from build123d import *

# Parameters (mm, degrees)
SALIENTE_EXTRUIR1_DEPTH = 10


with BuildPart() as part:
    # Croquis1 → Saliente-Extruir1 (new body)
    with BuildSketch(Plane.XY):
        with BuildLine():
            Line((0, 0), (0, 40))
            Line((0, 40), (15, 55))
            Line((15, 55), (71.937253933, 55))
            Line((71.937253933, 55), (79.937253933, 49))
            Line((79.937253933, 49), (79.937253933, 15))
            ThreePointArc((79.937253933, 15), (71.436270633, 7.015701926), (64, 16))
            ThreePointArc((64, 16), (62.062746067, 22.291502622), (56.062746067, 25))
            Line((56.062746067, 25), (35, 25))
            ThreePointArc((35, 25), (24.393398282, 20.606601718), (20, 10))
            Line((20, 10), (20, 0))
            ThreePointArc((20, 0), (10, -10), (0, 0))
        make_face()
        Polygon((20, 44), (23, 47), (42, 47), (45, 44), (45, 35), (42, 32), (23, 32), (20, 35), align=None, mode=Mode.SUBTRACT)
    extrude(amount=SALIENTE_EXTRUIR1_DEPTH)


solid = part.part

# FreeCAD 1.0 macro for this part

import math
import FreeCAD as App
import Part
import Sketcher
Q = App.Units.Quantity

doc = App.newDocument("Part")
params = doc.addObject("Spreadsheet::Sheet", "Params")
for row, (alias, value) in enumerate([
    ("sketch1_radius", "10 mm"),
    ("sketch1_radius2", "15 mm"),
    ("sketch1_radius3", "8 mm"),
    ("sketch1_width", "19 mm"),
    ("sketch1_height", "40 mm"),
    ("pad1_length", "10 mm"),
], start=1):
    params.set(f"A{row}", alias)
    params.set(f"B{row}", "=" + value)
    params.setAlias(f"B{row}", alias)

body = doc.addObject("PartDesign::Body", "Body")

# Sketch on XY plane
sketch1 = body.newObject("Sketcher::SketchObject", "Sketch")
sketch1.AttachmentSupport = (doc.getObject("XY_Plane"), [""])
sketch1.MapMode = "FlatFace"
sketch1.addGeometry([
    Part.LineSegment(App.Vector(0, 40, 0), App.Vector(0, 0, 0)),  # 0
    Part.ArcOfCircle(Part.Circle(App.Vector(10, 0, 0), App.Vector(0, 0, 1), 10), math.radians(180), math.radians(360)),  # 1
    Part.LineSegment(App.Vector(20, 0, 0), App.Vector(20, 10, 0)),  # 2
    Part.ArcOfCircle(Part.Circle(App.Vector(35, 10, 0), App.Vector(0, 0, 1), 15), math.radians(90), math.radians(180)),  # 3
    Part.LineSegment(App.Vector(35, 25, 0), App.Vector(56.1, 25, 0)),  # 4
    Part.ArcOfCircle(Part.Circle(App.Vector(56.1, 17, 0), App.Vector(0, 0, 1), 8), math.radians(-7), math.radians(90)),  # 5
    Part.ArcOfCircle(Part.Circle(App.Vector(71.9, 15, 0), App.Vector(0, 0, 1), 8), math.radians(173), math.radians(360)),  # 6
    Part.LineSegment(App.Vector(79.9, 15, 0), App.Vector(79.9, 49, 0)),  # 7
    Part.LineSegment(App.Vector(79.9, 49, 0), App.Vector(71.9, 55, 0)),  # 8
    Part.LineSegment(App.Vector(71.9, 55, 0), App.Vector(15, 55, 0)),  # 9
    Part.LineSegment(App.Vector(15, 55, 0), App.Vector(0, 40, 0)),  # 10
    Part.LineSegment(App.Vector(20, 44, 0), App.Vector(23, 47, 0)),  # 11
    Part.LineSegment(App.Vector(23, 47, 0), App.Vector(42, 47, 0)),  # 12
    Part.LineSegment(App.Vector(42, 47, 0), App.Vector(45, 44, 0)),  # 13
    Part.LineSegment(App.Vector(45, 44, 0), App.Vector(45, 35, 0)),  # 14
    Part.LineSegment(App.Vector(45, 35, 0), App.Vector(42, 32, 0)),  # 15
    Part.LineSegment(App.Vector(42, 32, 0), App.Vector(23, 32, 0)),  # 16
    Part.LineSegment(App.Vector(23, 32, 0), App.Vector(20, 35, 0)),  # 17
    Part.LineSegment(App.Vector(20, 35, 0), App.Vector(20, 44, 0)),  # 18
], False)
sketch1.addConstraint([
    Sketcher.Constraint("Tangent", 0, 2, 1, 1),
    Sketcher.Constraint("Tangent", 1, 2, 2, 1),
    Sketcher.Constraint("Tangent", 2, 2, 3, 2),
    Sketcher.Constraint("Tangent", 3, 1, 4, 1),
    Sketcher.Constraint("Tangent", 4, 2, 5, 2),
    Sketcher.Constraint("Tangent", 5, 1, 6, 1),
    Sketcher.Constraint("Tangent", 6, 2, 7, 1),
    Sketcher.Constraint("Coincident", 7, 2, 8, 1),
    Sketcher.Constraint("Coincident", 8, 2, 9, 1),
    Sketcher.Constraint("Coincident", 9, 2, 10, 1),
    Sketcher.Constraint("Coincident", 10, 2, 0, 1),
    Sketcher.Constraint("Coincident", 11, 2, 12, 1),
    Sketcher.Constraint("Coincident", 12, 2, 13, 1),
    Sketcher.Constraint("Coincident", 13, 2, 14, 1),
    Sketcher.Constraint("Coincident", 14, 2, 15, 1),
    Sketcher.Constraint("Coincident", 15, 2, 16, 1),
    Sketcher.Constraint("Coincident", 16, 2, 17, 1),
    Sketcher.Constraint("Coincident", 17, 2, 18, 1),
    Sketcher.Constraint("Coincident", 18, 2, 11, 1),
    Sketcher.Constraint("Vertical", 0),
    Sketcher.Constraint("Vertical", 2),
    Sketcher.Constraint("Horizontal", 4),
    Sketcher.Constraint("Vertical", 7),
    Sketcher.Constraint("Horizontal", 9),
    Sketcher.Constraint("Horizontal", 12),
    Sketcher.Constraint("Vertical", 14),
    Sketcher.Constraint("Horizontal", 16),
    Sketcher.Constraint("Vertical", 18),
    Sketcher.Constraint("Coincident", 0, 2, -1, 1),
    Sketcher.Constraint("Equal", 5, 6),
    Sketcher.Constraint("Parallel", 10, 11),
    Sketcher.Constraint("Perpendicular", 11, 13),
    Sketcher.Constraint("Perpendicular", 13, 15),
    Sketcher.Constraint("Perpendicular", 15, 17),
    Sketcher.Constraint("Horizontal", 14, 2, 17, 2),
    Sketcher.Constraint("Horizontal", 13, 2, 18, 2),
    Sketcher.Constraint("Vertical", 6, 3, 8, 2),
    Sketcher.Constraint("Vertical", 12, 2, 15, 2),
    Sketcher.Constraint("Vertical", 11, 2, 16, 2),
    Sketcher.Constraint("Vertical", 2, 2, 17, 2),
    Sketcher.Constraint("Radius", 1, Q("10 mm")),
    Sketcher.Constraint("Radius", 3, Q("15 mm")),
    Sketcher.Constraint("Radius", 5, Q("8 mm")),
    Sketcher.Constraint("DistanceX", 12, 1, 12, 2, Q("19 mm")),
    Sketcher.Constraint("DistanceY", 0, 2, 0, 1, Q("40 mm")),
    Sketcher.Constraint("DistanceY", 2, 1, 2, 2, Q("10 mm")),
    Sketcher.Constraint("DistanceY", 7, 1, 7, 2, Q("34 mm")),
    Sketcher.Constraint("DistanceY", 14, 2, 14, 1, Q("9 mm")),
    Sketcher.Constraint("Distance", 8, Q("10 mm")),
    Sketcher.Constraint("DistanceY", -1, 1, 6, 3, Q("15 mm")),
    Sketcher.Constraint("DistanceX", -1, 1, 5, 1, Q("64 mm")),
    Sketcher.Constraint("DistanceX", -1, 1, 11, 2, Q("23 mm")),
    Sketcher.Constraint("DistanceY", -1, 1, 11, 2, Q("47 mm")),
])
sketch1.setExpression("Constraints[40]", "Params.sketch1_radius")
sketch1.setExpression("Constraints[41]", "Params.sketch1_radius2")
sketch1.setExpression("Constraints[42]", "Params.sketch1_radius3")
sketch1.setExpression("Constraints[43]", "Params.sketch1_width")
sketch1.setExpression("Constraints[44]", "Params.sketch1_height")
pad1 = body.newObject("PartDesign::Pad", "Pad")
pad1.Profile = sketch1
pad1.setExpression("Length", "Params.pad1_length")

doc.recompute()
